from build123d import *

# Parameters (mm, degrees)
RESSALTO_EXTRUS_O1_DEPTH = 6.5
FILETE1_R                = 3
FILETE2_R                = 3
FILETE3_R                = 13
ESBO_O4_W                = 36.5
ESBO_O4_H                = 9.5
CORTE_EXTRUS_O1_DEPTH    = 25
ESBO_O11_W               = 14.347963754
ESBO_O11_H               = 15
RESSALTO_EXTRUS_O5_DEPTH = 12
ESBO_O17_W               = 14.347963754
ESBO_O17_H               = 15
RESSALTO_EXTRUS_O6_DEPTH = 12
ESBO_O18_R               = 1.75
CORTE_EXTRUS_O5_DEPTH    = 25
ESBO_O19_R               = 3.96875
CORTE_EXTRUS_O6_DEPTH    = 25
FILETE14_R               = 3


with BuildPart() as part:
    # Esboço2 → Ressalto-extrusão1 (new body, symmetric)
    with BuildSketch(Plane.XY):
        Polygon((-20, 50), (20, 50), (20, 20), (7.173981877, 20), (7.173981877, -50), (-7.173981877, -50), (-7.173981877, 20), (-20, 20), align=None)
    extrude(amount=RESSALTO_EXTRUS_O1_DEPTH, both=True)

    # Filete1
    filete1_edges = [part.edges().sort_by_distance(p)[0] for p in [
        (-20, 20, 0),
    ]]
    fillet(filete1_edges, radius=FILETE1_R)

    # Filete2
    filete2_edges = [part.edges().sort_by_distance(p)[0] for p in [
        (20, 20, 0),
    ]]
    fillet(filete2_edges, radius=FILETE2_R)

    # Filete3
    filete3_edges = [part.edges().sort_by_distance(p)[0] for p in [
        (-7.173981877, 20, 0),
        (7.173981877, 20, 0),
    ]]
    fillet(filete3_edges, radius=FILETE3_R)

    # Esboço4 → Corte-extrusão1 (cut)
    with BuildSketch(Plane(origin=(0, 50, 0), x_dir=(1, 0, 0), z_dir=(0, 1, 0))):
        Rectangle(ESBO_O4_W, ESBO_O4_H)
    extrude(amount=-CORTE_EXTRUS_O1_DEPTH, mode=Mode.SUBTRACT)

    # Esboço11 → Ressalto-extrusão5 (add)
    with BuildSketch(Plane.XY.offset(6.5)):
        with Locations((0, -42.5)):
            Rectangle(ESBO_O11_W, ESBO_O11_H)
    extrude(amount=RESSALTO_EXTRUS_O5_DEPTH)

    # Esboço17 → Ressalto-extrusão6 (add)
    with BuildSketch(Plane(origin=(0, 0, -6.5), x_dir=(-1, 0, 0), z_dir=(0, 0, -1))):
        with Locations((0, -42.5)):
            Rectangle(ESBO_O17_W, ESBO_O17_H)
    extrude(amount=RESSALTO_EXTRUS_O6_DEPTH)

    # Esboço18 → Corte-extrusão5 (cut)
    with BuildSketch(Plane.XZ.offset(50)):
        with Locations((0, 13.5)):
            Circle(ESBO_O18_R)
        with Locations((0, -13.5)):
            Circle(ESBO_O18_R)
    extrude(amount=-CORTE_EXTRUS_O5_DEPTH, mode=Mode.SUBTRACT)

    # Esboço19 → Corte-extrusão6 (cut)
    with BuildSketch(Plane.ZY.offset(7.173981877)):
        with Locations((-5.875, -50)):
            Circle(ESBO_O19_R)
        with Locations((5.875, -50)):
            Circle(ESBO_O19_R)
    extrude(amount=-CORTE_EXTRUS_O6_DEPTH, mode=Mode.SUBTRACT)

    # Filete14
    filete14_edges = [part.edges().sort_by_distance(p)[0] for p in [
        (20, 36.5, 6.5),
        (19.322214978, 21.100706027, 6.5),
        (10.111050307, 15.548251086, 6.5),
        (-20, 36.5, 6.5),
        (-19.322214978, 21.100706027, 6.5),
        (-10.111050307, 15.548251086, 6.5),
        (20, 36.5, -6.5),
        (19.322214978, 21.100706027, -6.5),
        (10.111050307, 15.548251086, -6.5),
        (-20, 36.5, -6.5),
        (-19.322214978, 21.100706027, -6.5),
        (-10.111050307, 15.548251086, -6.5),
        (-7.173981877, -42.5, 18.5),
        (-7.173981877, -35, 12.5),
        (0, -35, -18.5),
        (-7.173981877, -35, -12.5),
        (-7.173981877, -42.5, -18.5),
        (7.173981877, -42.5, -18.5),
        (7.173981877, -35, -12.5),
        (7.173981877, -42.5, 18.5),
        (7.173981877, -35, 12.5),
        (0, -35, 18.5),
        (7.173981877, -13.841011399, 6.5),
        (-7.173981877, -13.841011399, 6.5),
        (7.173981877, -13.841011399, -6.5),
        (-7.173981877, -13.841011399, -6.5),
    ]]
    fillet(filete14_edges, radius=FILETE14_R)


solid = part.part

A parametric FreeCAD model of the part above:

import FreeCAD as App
import Part
import Sketcher


def edges_at(feature, points):
    """Names of the edges that pass closest to the given points."""
    edges = feature.Shape.Edges
    near = lambda p: min(range(len(edges)), key=lambda i: edges[i].distToShape(Part.Vertex(*p))[0])
    return sorted({f"Edge{near(p) + 1}" for p in points})

doc = App.newDocument("Part")
params = doc.addObject("Spreadsheet::Sheet", "Params")
for row, (alias, value) in enumerate([
    ("sketch1_width", "40 mm"),
    ("sketch1_height", "30 mm"),
    ("sketch1_height2", "70 mm"),
    ("pad1_length", "13 mm"),
    ("fillet_radius", "3 mm"),
    ("fillet2_radius", "3 mm"),
    ("fillet3_radius", "13 mm"),
    ("sketch2_width", "36.5 mm"),
    ("sketch2_height", "9.5 mm"),
    ("pocket1_length", "25 mm"),
    ("sketch3_height", "15 mm"),
    ("pad2_length", "12 mm"),
    ("sketch4_height", "15 mm"),
    ("pad3_length", "12 mm"),
    ("sketch5_diameter", "3.5 mm"),
    ("pocket2_length", "25 mm"),
    ("pocket3_length", "25 mm"),
    ("fillet4_radius", "3 mm"),
], start=1):
    params.set(f"A{row}", alias)
    params.set(f"B{row}", "=" + value)
    params.setAlias(f"B{row}", alias)

body = doc.addObject("PartDesign::Body", "Body")

# Sketch on XY plane
sketch1 = body.newObject("Sketcher::SketchObject", "Sketch")
sketch1.AttachmentSupport = (doc.getObject("XY_Plane"), [""])
sketch1.MapMode = "FlatFace"
sketch1.addGeometry([
    Part.LineSegment(App.Vector(20, 50, 0), App.Vector(-20, 50, 0)),  # 0
    Part.LineSegment(App.Vector(-20, 50, 0), App.Vector(-20, 20, 0)),  # 1
    Part.LineSegment(App.Vector(-20, 20, 0), App.Vector(-7, 20, 0)),  # 2
    Part.LineSegment(App.Vector(-7, 20, 0), App.Vector(-7, -50, 0)),  # 3
    Part.LineSegment(App.Vector(-7, -50, 0), App.Vector(7, -50, 0)),  # 4
    Part.LineSegment(App.Vector(7, -50, 0), App.Vector(7, 20, 0)),  # 5
    Part.LineSegment(App.Vector(7, 20, 0), App.Vector(20, 20, 0)),  # 6
    Part.LineSegment(App.Vector(20, 20, 0), App.Vector(20, 50, 0)),  # 7
], False)
sketch1.addConstraint([
    Sketcher.Constraint("Coincident", 0, 2, 1, 1),
    Sketcher.Constraint("Coincident", 1, 2, 2, 1),
    Sketcher.Constraint("Coincident", 2, 2, 3, 1),
    Sketcher.Constraint("Coincident", 3, 2, 4, 1),
    Sketcher.Constraint("Coincident", 4, 2, 5, 1),
    Sketcher.Constraint("Coincident", 5, 2, 6, 1),
    Sketcher.Constraint("Coincident", 6, 2, 7, 1),
    Sketcher.Constraint("Coincident", 7, 2, 0, 1),
    Sketcher.Constraint("Horizontal", 0),
    Sketcher.Constraint("Vertical", 1),
    Sketcher.Constraint("Horizontal", 2),
    Sketcher.Constraint("Vertical", 3),
    Sketcher.Constraint("Horizontal", 4),
    Sketcher.Constraint("Vertical", 5),
    Sketcher.Constraint("Horizontal", 6),
    Sketcher.Constraint("Vertical", 7),
    Sketcher.Constraint("Symmetric", 2, 2, 5, 2, -2),
    Sketcher.Constraint("Equal", 2, 6),
    Sketcher.Constraint("DistanceX", 0, 2, 0, 1, 40.0),
    Sketcher.Constraint("DistanceY", 1, 2, 1, 1, 30.0),
    Sketcher.Constraint("DistanceY", 3, 2, 3, 1, 70.0),
    Sketcher.Constraint("DistanceY", -1, 1, 0, 2, 50.0),
    Sketcher.Constraint("DistanceX", 2, 1, 2, 2, 12.826018),
])
sketch1.setExpression("Constraints[18]", "Params.sketch1_width")
sketch1.setExpression("Constraints[19]", "Params.sketch1_height")
sketch1.setExpression("Constraints[20]", "Params.sketch1_height2")
pad1 = body.newObject("PartDesign::Pad", "Pad")
pad1.Profile = sketch1
pad1.setExpression("Length", "Params.pad1_length")
pad1.Midplane = True
doc.recompute()

fillet = body.newObject("PartDesign::Fillet", "Fillet")
fillet.Base = (pad1, edges_at(pad1, [(-20, 20, 0)]))
fillet.setExpression("Radius", "Params.fillet_radius")
doc.recompute()

fillet2 = body.newObject("PartDesign::Fillet", "Fillet001")
fillet2.Base = (fillet, edges_at(fillet, [(20, 20, 0)]))
fillet2.setExpression("Radius", "Params.fillet2_radius")
doc.recompute()

fillet3 = body.newObject("PartDesign::Fillet", "Fillet002")
fillet3.Base = (fillet2, edges_at(fillet2, [(-7.174, 20, 0), (7.174, 20, 0)]))
fillet3.setExpression("Radius", "Params.fillet3_radius")

# Sketch on XZ plane
sketch2 = body.newObject("Sketcher::SketchObject", "Sketch001")
sketch2.AttachmentSupport = (doc.getObject("XZ_Plane"), [""])
sketch2.MapMode = "FlatFace"
sketch2.AttachmentOffset = App.Placement(App.Vector(0, 0, -50), App.Rotation())
sketch2.addGeometry([
    Part.LineSegment(App.Vector(-18, -5, 0), App.Vector(-18, 5, 0)),
    Part.LineSegment(App.Vector(-18, 5, 0), App.Vector(18, 5, 0)),
    Part.LineSegment(App.Vector(18, 5, 0), App.Vector(18, -5, 0)),
    Part.LineSegment(App.Vector(18, -5, 0), App.Vector(-18, -5, 0)),
], False)
sketch2.addConstraint([
    Sketcher.Constraint("Coincident", 0, 2, 1, 1),
    Sketcher.Constraint("Coincident", 1, 2, 2, 1),
    Sketcher.Constraint("Coincident", 2, 2, 3, 1),
    Sketcher.Constraint("Coincident", 3, 2, 0, 1),
    Sketcher.Constraint("Vertical", 0),
    Sketcher.Constraint("Horizontal", 1),
    Sketcher.Constraint("Vertical", 2),
    Sketcher.Constraint("Horizontal", 3),
    Sketcher.Constraint("Symmetric", 0, 2, 2, 2, -1, 1),
    Sketcher.Constraint("DistanceX", 1, 1, 1, 2, 36.5),
    Sketcher.Constraint("DistanceY", 0, 1, 0, 2, 9.5),
])
sketch2.setExpression("Constraints[9]", "Params.sketch2_width")
sketch2.setExpression("Constraints[10]", "Params.sketch2_height")
pocket1 = body.newObject("PartDesign::Pocket", "Pocket")
pocket1.Profile = sketch2
pocket1.setExpression("Length", "Params.pocket1_length")
pocket1.Reversed = True

# Sketch on XY plane
sketch3 = body.newObject("Sketcher::SketchObject", "Sketch002")
sketch3.AttachmentSupport = (doc.getObject("XY_Plane"), [""])
sketch3.MapMode = "FlatFace"
sketch3.AttachmentOffset = App.Placement(App.Vector(0, 0, 6.5), App.Rotation())
sketch3.addGeometry([
    Part.LineSegment(App.Vector(-7, -35, 0), App.Vector(-7, -50, 0)),
    Part.LineSegment(App.Vector(-7, -50, 0), App.Vector(7, -50, 0)),
    Part.LineSegment(App.Vector(7, -50, 0), App.Vector(7, -35, 0)),
    Part.LineSegment(App.Vector(7, -35, 0), App.Vector(-7, -35, 0)),
], False)
sketch3.addConstraint([
    Sketcher.Constraint("Coincident", 0, 2, 1, 1),
    Sketcher.Constraint("Coincident", 1, 2, 2, 1),
    Sketcher.Constraint("Coincident", 2, 2, 3, 1),
    Sketcher.Constraint("Coincident", 3, 2, 0, 1),
    Sketcher.Constraint("Vertical", 0),
    Sketcher.Constraint("Horizontal", 1),
    Sketcher.Constraint("Vertical", 2),
    Sketcher.Constraint("Horizontal", 3),
    Sketcher.Constraint("DistanceY", 0, 2, 0, 1, 15.0),
    Sketcher.Constraint("DistanceY", 0, 2, -1, 1, 50.0),
    Sketcher.Constraint("DistanceX", 1, 1, 1, 2, 14.347964),
    Sketcher.Constraint("DistanceX", 0, 2, -1, 1, 7.173982),
])
sketch3.setExpression("Constraints[8]", "Params.sketch3_height")
pad2 = body.newObject("PartDesign::Pad", "Pad001")
pad2.Profile = sketch3
pad2.setExpression("Length", "Params.pad2_length")

# Sketch on XY plane
sketch4 = body.newObject("Sketcher::SketchObject", "Sketch003")
sketch4.AttachmentSupport = (doc.getObject("XY_Plane"), [""])
sketch4.MapMode = "FlatFace"
sketch4.AttachmentOffset = App.Placement(App.Vector(0, 0, -6.5), App.Rotation())
sketch4.addGeometry([
    Part.LineSegment(App.Vector(7, -35, 0), App.Vector(7, -50, 0)),
    Part.LineSegment(App.Vector(7, -50, 0), App.Vector(-7, -50, 0)),
    Part.LineSegment(App.Vector(-7, -50, 0), App.Vector(-7, -35, 0)),
    Part.LineSegment(App.Vector(-7, -35, 0), App.Vector(7, -35, 0)),
], False)
sketch4.addConstraint([
    Sketcher.Constraint("Coincident", 0, 2, 1, 1),
    Sketcher.Constraint("Coincident", 1, 2, 2, 1),
    Sketcher.Constraint("Coincident", 2, 2, 3, 1),
    Sketcher.Constraint("Coincident", 3, 2, 0, 1),
    Sketcher.Constraint("Vertical", 0),
    Sketcher.Constraint("Horizontal", 1),
    Sketcher.Constraint("Vertical", 2),
    Sketcher.Constraint("Horizontal", 3),
    Sketcher.Constraint("DistanceY", 0, 2, 0, 1, 15.0),
    Sketcher.Constraint("DistanceY", 0, 2, -1, 1, 50.0),
    Sketcher.Constraint("DistanceX", 1, 2, 1, 1, 14.347964),
    Sketcher.Constraint("DistanceX", -1, 1, 0, 2, 7.173982),
])
sketch4.setExpression("Constraints[8]", "Params.sketch4_height")
pad3 = body.newObject("PartDesign::Pad", "Pad002")
pad3.Profile = sketch4
pad3.setExpression("Length", "Params.pad3_length")
pad3.Reversed = True

# Sketch on XZ plane
sketch5 = body.newObject("Sketcher::SketchObject", "Sketch004")
sketch5.AttachmentSupport = (doc.getObject("XZ_Plane"), [""])
sketch5.MapMode = "FlatFace"
sketch5.AttachmentOffset = App.Placement(App.Vector(0, 0, 50), App.Rotation())
sketch5.addGeometry([
    Part.Circle(App.Vector(0, 13.5, 0), App.Vector(0, 0, 1), 1.8),
    Part.Circle(App.Vector(0, -13.5, 0), App.Vector(0, 0, 1), 1.8),
], False)
sketch5.addConstraint([
    Sketcher.Constraint("Equal", 0, 1),
    Sketcher.Constraint("Symmetric", 0, 3, 1, 3, -1, 1),
    Sketcher.Constraint("PointOnObject", 0, 3, -2),
    Sketcher.Constraint("Diameter", 0, 3.5),
    Sketcher.Constraint("DistanceY", 1, 3, 0, 3, 27.0),
])
sketch5.setExpression("Constraints[3]", "Params.sketch5_diameter")
pocket2 = body.newObject("PartDesign::Pocket", "Pocket001")
pocket2.Profile = sketch5
pocket2.setExpression("Length", "Params.pocket2_length")

# Sketch on YZ plane
sketch6 = body.newObject("Sketcher::SketchObject", "Sketch005")
sketch6.AttachmentSupport = (doc.getObject("YZ_Plane"), [""])
sketch6.MapMode = "FlatFace"
sketch6.AttachmentOffset = App.Placement(App.Vector(0, 0, -7.173982), App.Rotation())
sketch6.addGeometry([
    Part.Circle(App.Vector(-50, -5.9, 0), App.Vector(0, 0, 1), 4),
    Part.Circle(App.Vector(-50, 5.9, 0), App.Vector(0, 0, 1), 4),
], False)
sketch6.addConstraint([
    Sketcher.Constraint("Equal", 0, 1),
    Sketcher.Constraint("Symmetric", 0, 3, 1, 3, -1),
    Sketcher.Constraint("DistanceX", 0, 3, -1, 1, 50.0),
    Sketcher.Constraint("Diameter", 0, 7.9375),
    Sketcher.Constraint("DistanceY", 0, 3, 1, 3, 11.75),
])
pocket3 = body.newObject("PartDesign::Pocket", "Pocket002")
pocket3.Profile = sketch6
pocket3.setExpression("Length", "Params.pocket3_length")
pocket3.Reversed = True
doc.recompute()

fillet4 = body.newObject("PartDesign::Fillet", "Fillet003")
fillet4.Base = (pocket3, edges_at(pocket3, [
    (20, 36.5, 6.5),
    (19.322, 21.101, 6.5),
    (10.111, 15.548, 6.5),
    (-20, 36.5, 6.5),
    (-19.322, 21.101, 6.5),
    (-10.111, 15.548, 6.5),
    (20, 36.5, -6.5),
    (19.322, 21.101, -6.5),
    (10.111, 15.548, -6.5),
    (-20, 36.5, -6.5),
    (-19.322, 21.101, -6.5),
    (-10.111, 15.548, -6.5),
    (-7.174, -42.5, 18.5),
    (-7.174, -35, 12.5),
    (0, -35, -18.5),
    (-7.174, -35, -12.5),
    (-7.174, -42.5, -18.5),
    (7.174, -42.5, -18.5),
    (7.174, -35, -12.5),
    (7.174, -42.5, 18.5),
    (7.174, -35, 12.5),
    (0, -35, 18.5),
    (7.174, -13.841, 6.5),
    (-7.174, -13.841, 6.5),
    (7.174, -13.841, -6.5),
    (-7.174, -13.841, -6.5),
]))
fillet4.setExpression("Radius", "Params.fillet4_radius")

doc.recompute()
